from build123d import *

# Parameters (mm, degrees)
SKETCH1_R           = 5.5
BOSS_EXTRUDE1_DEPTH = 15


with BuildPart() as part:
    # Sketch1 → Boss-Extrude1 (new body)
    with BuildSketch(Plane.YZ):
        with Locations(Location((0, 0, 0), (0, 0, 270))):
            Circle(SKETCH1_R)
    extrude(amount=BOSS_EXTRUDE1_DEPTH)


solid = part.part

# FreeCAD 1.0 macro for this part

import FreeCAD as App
import Part
import Sketcher
Q = App.Units.Quantity

doc = App.newDocument("Part")
body = doc.addObject("PartDesign::Body", "Body")

sketch1 = doc.addObject("Sketcher::SketchObject", "Sketch")
body.addObject(sketch1)
sketch1.AttachmentSupport = (doc.YZ_Plane, [""])
sketch1.MapMode = "FlatFace"
sketch1.addGeometry(Part.Circle(App.Vector(0, 0, 0), App.Vector(0, 0, 1), 6), False)
sketch1.addConstraint(Sketcher.Constraint("Coincident", 0, 3, -1, 1))
sketch1.addConstraint(Sketcher.Constraint("Diameter", 0, Q("11 mm")))
pad1 = doc.addObject("PartDesign::Pad", "Pad")
body.addObject(pad1)
pad1.Profile = sketch1
pad1.Length = 15

doc.recompute()
